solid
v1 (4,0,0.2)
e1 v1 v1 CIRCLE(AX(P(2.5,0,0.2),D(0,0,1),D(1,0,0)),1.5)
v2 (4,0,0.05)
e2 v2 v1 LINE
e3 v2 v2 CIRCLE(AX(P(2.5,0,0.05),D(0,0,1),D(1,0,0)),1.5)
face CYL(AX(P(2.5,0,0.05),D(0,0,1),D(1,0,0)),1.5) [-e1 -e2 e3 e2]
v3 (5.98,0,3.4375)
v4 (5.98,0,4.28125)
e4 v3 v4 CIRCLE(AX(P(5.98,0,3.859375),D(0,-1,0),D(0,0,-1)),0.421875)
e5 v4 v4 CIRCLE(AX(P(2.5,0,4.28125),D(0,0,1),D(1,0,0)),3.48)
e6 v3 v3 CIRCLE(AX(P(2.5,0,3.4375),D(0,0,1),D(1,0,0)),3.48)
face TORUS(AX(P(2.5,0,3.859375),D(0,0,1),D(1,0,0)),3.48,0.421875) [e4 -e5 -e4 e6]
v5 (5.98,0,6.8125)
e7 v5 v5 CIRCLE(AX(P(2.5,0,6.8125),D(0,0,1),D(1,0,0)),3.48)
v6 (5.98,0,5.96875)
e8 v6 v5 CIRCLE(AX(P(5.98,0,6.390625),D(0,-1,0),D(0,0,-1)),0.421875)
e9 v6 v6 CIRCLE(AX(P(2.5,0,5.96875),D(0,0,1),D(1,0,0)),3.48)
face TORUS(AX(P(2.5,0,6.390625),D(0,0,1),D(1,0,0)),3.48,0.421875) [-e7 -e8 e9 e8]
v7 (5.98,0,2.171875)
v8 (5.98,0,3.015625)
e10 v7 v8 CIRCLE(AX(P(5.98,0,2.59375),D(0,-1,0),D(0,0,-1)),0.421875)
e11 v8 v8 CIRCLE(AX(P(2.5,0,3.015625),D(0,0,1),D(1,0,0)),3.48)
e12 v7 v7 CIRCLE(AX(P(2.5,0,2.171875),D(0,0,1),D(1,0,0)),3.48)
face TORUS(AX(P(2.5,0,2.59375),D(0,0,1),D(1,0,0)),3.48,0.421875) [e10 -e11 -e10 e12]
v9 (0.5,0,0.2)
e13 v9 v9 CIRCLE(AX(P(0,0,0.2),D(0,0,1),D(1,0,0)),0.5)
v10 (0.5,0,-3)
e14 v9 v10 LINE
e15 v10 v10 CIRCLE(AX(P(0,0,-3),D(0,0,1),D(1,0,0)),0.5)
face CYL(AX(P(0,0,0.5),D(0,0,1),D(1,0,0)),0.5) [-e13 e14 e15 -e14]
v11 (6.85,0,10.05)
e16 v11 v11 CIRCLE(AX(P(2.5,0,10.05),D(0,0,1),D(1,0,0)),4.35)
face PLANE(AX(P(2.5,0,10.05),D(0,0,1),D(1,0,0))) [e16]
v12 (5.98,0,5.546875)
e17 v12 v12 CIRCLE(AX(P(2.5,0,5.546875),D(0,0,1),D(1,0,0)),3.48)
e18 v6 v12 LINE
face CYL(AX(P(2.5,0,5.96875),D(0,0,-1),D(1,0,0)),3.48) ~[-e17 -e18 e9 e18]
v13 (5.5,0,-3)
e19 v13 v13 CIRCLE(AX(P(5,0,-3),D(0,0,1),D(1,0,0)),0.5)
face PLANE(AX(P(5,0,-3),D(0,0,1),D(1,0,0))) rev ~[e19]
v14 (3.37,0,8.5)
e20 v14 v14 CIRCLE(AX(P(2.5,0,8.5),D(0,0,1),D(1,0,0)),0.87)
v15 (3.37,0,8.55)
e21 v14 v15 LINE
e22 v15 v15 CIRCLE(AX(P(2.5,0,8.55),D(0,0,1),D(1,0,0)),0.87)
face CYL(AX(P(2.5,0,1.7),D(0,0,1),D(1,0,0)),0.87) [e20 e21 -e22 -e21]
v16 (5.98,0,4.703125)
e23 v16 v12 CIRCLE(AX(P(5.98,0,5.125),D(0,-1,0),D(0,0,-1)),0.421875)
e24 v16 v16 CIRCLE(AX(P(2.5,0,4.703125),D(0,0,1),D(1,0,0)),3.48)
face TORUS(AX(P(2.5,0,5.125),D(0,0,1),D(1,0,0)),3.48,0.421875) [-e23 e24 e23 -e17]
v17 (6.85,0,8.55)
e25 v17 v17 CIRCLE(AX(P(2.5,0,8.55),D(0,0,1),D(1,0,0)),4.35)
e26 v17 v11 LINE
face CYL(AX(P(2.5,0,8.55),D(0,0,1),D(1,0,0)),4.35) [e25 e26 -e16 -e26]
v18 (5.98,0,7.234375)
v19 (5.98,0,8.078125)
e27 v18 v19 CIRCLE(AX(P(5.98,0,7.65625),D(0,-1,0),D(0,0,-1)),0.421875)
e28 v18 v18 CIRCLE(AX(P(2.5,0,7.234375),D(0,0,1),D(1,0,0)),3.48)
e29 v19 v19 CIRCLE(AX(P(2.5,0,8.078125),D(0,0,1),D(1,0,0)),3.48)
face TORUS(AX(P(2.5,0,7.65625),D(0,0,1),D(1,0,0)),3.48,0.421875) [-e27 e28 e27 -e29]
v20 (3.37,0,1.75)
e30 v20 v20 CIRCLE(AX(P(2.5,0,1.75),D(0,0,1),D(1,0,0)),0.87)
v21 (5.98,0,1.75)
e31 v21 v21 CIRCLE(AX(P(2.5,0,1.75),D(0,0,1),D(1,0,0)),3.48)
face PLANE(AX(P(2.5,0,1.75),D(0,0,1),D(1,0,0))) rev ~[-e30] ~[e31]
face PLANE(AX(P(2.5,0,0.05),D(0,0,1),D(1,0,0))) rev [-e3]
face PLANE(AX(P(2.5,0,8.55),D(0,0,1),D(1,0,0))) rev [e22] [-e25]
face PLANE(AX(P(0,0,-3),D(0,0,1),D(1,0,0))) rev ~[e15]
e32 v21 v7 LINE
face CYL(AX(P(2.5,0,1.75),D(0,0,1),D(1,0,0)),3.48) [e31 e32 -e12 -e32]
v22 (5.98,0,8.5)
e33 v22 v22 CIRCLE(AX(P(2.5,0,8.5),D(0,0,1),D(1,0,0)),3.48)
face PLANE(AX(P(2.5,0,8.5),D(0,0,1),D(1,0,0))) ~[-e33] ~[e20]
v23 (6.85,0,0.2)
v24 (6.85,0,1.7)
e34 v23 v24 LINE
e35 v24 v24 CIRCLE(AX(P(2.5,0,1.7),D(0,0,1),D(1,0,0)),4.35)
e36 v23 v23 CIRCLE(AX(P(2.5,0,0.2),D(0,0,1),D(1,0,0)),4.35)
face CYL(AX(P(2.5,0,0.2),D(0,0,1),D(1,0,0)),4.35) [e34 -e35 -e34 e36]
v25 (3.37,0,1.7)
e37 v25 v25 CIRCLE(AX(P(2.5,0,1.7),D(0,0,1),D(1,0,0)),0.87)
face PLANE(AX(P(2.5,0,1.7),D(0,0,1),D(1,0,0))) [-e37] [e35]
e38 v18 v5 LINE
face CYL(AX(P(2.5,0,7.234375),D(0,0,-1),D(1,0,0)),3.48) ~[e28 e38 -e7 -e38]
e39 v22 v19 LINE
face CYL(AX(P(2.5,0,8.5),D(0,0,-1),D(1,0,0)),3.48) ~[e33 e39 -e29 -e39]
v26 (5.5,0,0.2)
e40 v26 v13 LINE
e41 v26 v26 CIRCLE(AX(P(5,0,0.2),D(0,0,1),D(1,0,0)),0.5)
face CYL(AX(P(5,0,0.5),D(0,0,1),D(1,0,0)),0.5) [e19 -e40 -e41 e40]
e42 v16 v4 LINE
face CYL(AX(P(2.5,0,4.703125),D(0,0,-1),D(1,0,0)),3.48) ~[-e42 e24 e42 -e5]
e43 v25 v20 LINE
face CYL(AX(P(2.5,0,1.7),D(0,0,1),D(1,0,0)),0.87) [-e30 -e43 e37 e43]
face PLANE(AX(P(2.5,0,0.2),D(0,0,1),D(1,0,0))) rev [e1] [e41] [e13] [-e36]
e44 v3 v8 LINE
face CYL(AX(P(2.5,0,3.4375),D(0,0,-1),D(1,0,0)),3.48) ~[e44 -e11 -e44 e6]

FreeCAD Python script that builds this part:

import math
import FreeCAD as App
import Part
import Sketcher

V = App.Vector
Q = App.Units.Quantity


def add_polygon(sketch, points):
    """Adds a closed chain of lines whose ends are joined by coincident constraints."""
    first, n = sketch.GeometryCount, len(points)
    for a, b in zip(points, points[1:] + points[:1]):
        sketch.addGeometry(Part.LineSegment(App.Vector(*a, 0), App.Vector(*b, 0)), False)
    for i in range(n):
        sketch.addConstraint(Sketcher.Constraint("Coincident", first + i, 2, first + (i + 1) % n, 1))

doc = App.newDocument("Part")
body = doc.addObject("PartDesign::Body", "Body")

sketch1 = doc.addObject("Sketcher::SketchObject", "Sketch")
body.addObject(sketch1)
sketch1.AttachmentSupport = (doc.XZ_Plane, [""])
sketch1.MapMode = "FlatFace"
add_polygon(sketch1, [(2.5, 0.05), (4, 0.05), (4, 0.2), (6.85, 0.2), (6.85, 1.7), (3.37, 1.7), (3.37, 8.55), (6.85, 8.55), (6.85, 10.05), (2.5, 10.05)])
sketch1.addGeometry(Part.LineSegment(V(2.5, 0.05, 0), V(2.5, 10.05, 0)), True)
sketch1.addConstraint(Sketcher.Constraint("Horizontal", 0))
sketch1.addConstraint(Sketcher.Constraint("Vertical", 1))
sketch1.addConstraint(Sketcher.Constraint("Horizontal", 2))
sketch1.addConstraint(Sketcher.Constraint("Vertical", 3))
sketch1.addConstraint(Sketcher.Constraint("Horizontal", 4))
sketch1.addConstraint(Sketcher.Constraint("Vertical", 5))
sketch1.addConstraint(Sketcher.Constraint("Horizontal", 6))
sketch1.addConstraint(Sketcher.Constraint("Vertical", 7))
sketch1.addConstraint(Sketcher.Constraint("Horizontal", 8))
sketch1.addConstraint(Sketcher.Constraint("Vertical", 9))
sketch1.addConstraint(Sketcher.Constraint("Vertical", 10))
sketch1.addConstraint(Sketcher.Constraint("Coincident", 10, 1, 9, 2))
sketch1.addConstraint(Sketcher.Constraint("Horizontal", 7, 2, 10, 2))
sketch1.addConstraint(Sketcher.Constraint("Vertical", 3, 2, 6, 2))
sketch1.addConstraint(Sketcher.Constraint("Equal", 0, 3))
sketch1.addConstraint(Sketcher.Constraint("Equal", 3, 7))
sketch1.addConstraint(Sketcher.Constraint("DistanceY", 9, 2, 9, 1, Q("10 mm")))
sketch1.addConstraint(Sketcher.Constraint("DistanceX", 0, 1, 0, 2, Q("1.5 mm")))
sketch1.addConstraint(Sketcher.Constraint("DistanceX", -1, 1, 0, 2, Q("4 mm")))
sketch1.addConstraint(Sketcher.Constraint("DistanceX", 2, 1, 2, 2, Q("2.85 mm")))
sketch1.addConstraint(Sketcher.Constraint("DistanceX", 4, 2, 4, 1, Q("3.48 mm")))
sketch1.addConstraint(Sketcher.Constraint("DistanceY", 1, 1, 1, 2, Q("0.15 mm")))
sketch1.addConstraint(Sketcher.Constraint("DistanceY", -1, 1, 1, 2, Q("0.2 mm")))
revolution = doc.addObject("PartDesign::Revolution", "Revolution")
body.addObject(revolution)
revolution.Profile = sketch1
revolution.ReferenceAxis = (sketch1, ["Axis0"])
revolution.Angle = 360
body2 = doc.addObject("PartDesign::Body", "Body001")
body2.AllowCompound = True

sketch2 = doc.addObject("Sketcher::SketchObject", "Sketch001")
body2.addObject(sketch2)
sketch2.AttachmentSupport = (doc.getObject("XY_Plane001"), [""])
sketch2.MapMode = "FlatFace"
sketch2.AttachmentOffset = App.Placement(V(0, 0, 0.5), App.Rotation())
sketch2.addGeometry(Part.Circle(V(0, 0, 0), V(0, 0, 1), 0.5), False)
sketch2.addGeometry(Part.Circle(V(5, 0, 0), V(0, 0, 1), 0.5), False)
sketch2.addConstraint(Sketcher.Constraint("Coincident", 0, 3, -1, 1))
sketch2.addConstraint(Sketcher.Constraint("Equal", 0, 1))
sketch2.addConstraint(Sketcher.Constraint("PointOnObject", 1, 3, -1))
sketch2.addConstraint(Sketcher.Constraint("Diameter", 0, Q("1 mm")))
sketch2.addConstraint(Sketcher.Constraint("DistanceX", -1, 1, 1, 3, Q("5 mm")))
pad1 = doc.addObject("PartDesign::Pad", "Pad")
body2.addObject(pad1)
pad1.Profile = sketch2
pad1.Length = 3.5
pad1.Reversed = True
body3 = doc.addObject("PartDesign::Body", "Body002")

sketch3 = doc.addObject("Sketcher::SketchObject", "Sketch002")
body3.addObject(sketch3)
sketch3.AttachmentSupport = (doc.getObject("XZ_Plane002"), [""])
sketch3.MapMode = "FlatFace"
sketch3.addGeometry(Part.LineSegment(V(3.37, 1.75, 0), V(5.98, 1.75, 0)), False)
sketch3.addGeometry(Part.LineSegment(V(5.98, 1.75, 0), V(5.98, 2.17, 0)), False)
sketch3.addGeometry(Part.ArcOfCircle(Part.Circle(V(5.98, 2.59, 0), V(0, 0, 1), 0.42), math.radians(-90), math.radians(90)), False)
sketch3.addGeometry(Part.LineSegment(V(5.98, 3.02, 0), V(5.98, 3.44, 0)), False)
sketch3.addGeometry(Part.ArcOfCircle(Part.Circle(V(5.98, 3.86, 0), V(0, 0, 1), 0.42), math.radians(-90), math.radians(90)), False)
sketch3.addGeometry(Part.LineSegment(V(5.98, 4.28, 0), V(5.98, 4.7, 0)), False)
sketch3.addGeometry(Part.ArcOfCircle(Part.Circle(V(5.98, 5.12, 0), V(0, 0, 1), 0.42), math.radians(-90), math.radians(90)), False)
sketch3.addGeometry(Part.LineSegment(V(5.98, 5.55, 0), V(5.98, 5.97, 0)), False)
sketch3.addGeometry(Part.ArcOfCircle(Part.Circle(V(5.98, 6.39, 0), V(0, 0, 1), 0.42), math.radians(-90), math.radians(90)), False)
sketch3.addGeometry(Part.LineSegment(V(5.98, 6.81, 0), V(5.98, 7.23, 0)), False)
sketch3.addGeometry(Part.ArcOfCircle(Part.Circle(V(5.98, 7.66, 0), V(0, 0, 1), 0.42), math.radians(-90), math.radians(90)), False)
sketch3.addGeometry(Part.LineSegment(V(5.98, 8.08, 0), V(5.98, 8.5, 0)), False)
sketch3.addGeometry(Part.LineSegment(V(5.98, 8.5, 0), V(3.37, 8.5, 0)), False)
sketch3.addGeometry(Part.LineSegment(V(3.37, 8.5, 0), V(3.37, 1.75, 0)), False)
sketch3.addGeometry(Part.LineSegment(V(2.5, 1.75, 0), V(2.5, 8.5, 0)), True)
sketch3.addConstraint(Sketcher.Constraint("Coincident", 0, 2, 1, 1))
sketch3.addConstraint(Sketcher.Constraint("Coincident", 1, 2, 2, 1))
sketch3.addConstraint(Sketcher.Constraint("Coincident", 2, 2, 3, 1))
sketch3.addConstraint(Sketcher.Constraint("Coincident", 3, 2, 4, 1))
sketch3.addConstraint(Sketcher.Constraint("Coincident", 4, 2, 5, 1))
sketch3.addConstraint(Sketcher.Constraint("Coincident", 5, 2, 6, 1))
sketch3.addConstraint(Sketcher.Constraint("Coincident", 6, 2, 7, 1))
sketch3.addConstraint(Sketcher.Constraint("Coincident", 7, 2, 8, 1))
sketch3.addConstraint(Sketcher.Constraint("Coincident", 8, 2, 9, 1))
sketch3.addConstraint(Sketcher.Constraint("Coincident", 9, 2, 10, 1))
sketch3.addConstraint(Sketcher.Constraint("Coincident", 10, 2, 11, 1))
sketch3.addConstraint(Sketcher.Constraint("Coincident", 11, 2, 12, 1))
sketch3.addConstraint(Sketcher.Constraint("Coincident", 12, 2, 13, 1))
sketch3.addConstraint(Sketcher.Constraint("Coincident", 13, 2, 0, 1))
sketch3.addConstraint(Sketcher.Constraint("Horizontal", 0))
sketch3.addConstraint(Sketcher.Constraint("Vertical", 1))
sketch3.addConstraint(Sketcher.Constraint("Vertical", 3))
sketch3.addConstraint(Sketcher.Constraint("Vertical", 5))
sketch3.addConstraint(Sketcher.Constraint("Vertical", 7))
sketch3.addConstraint(Sketcher.Constraint("Vertical", 9))
sketch3.addConstraint(Sketcher.Constraint("Vertical", 11))
sketch3.addConstraint(Sketcher.Constraint("Horizontal", 12))
sketch3.addConstraint(Sketcher.Constraint("Vertical", 13))
sketch3.addConstraint(Sketcher.Constraint("Vertical", 14))
sketch3.addConstraint(Sketcher.Constraint("Equal", 2, 4))
sketch3.addConstraint(Sketcher.Constraint("Equal", 4, 6))
sketch3.addConstraint(Sketcher.Constraint("Equal", 6, 8))
sketch3.addConstraint(Sketcher.Constraint("Equal", 8, 10))
sketch3.addConstraint(Sketcher.Constraint("Horizontal", 13, 2, 14, 1))
sketch3.addConstraint(Sketcher.Constraint("Horizontal", 12, 2, 14, 2))
sketch3.addConstraint(Sketcher.Constraint("Vertical", 2, 3, 4, 3))
sketch3.addConstraint(Sketcher.Constraint("Vertical", 4, 3, 6, 3))
sketch3.addConstraint(Sketcher.Constraint("Vertical", 6, 3, 8, 3))
sketch3.addConstraint(Sketcher.Constraint("Vertical", 8, 3, 10, 3))
sketch3.addConstraint(Sketcher.Constraint("Vertical", 10, 3, 0, 2))
sketch3.addConstraint(Sketcher.Constraint("Vertical", 1, 2, 2, 2))
sketch3.addConstraint(Sketcher.Constraint("Vertical", 3, 2, 4, 2))
sketch3.addConstraint(Sketcher.Constraint("Vertical", 5, 2, 6, 2))
sketch3.addConstraint(Sketcher.Constraint("Vertical", 7, 2, 8, 2))
sketch3.addConstraint(Sketcher.Constraint("Vertical", 9, 2, 10, 2))
sketch3.addConstraint(Sketcher.Constraint("Equal", 1, 3))
sketch3.addConstraint(Sketcher.Constraint("Equal", 3, 5))
sketch3.addConstraint(Sketcher.Constraint("Equal", 5, 7))
sketch3.addConstraint(Sketcher.Constraint("Equal", 7, 9))
sketch3.addConstraint(Sketcher.Constraint("Equal", 9, 11))
sketch3.addConstraint(Sketcher.Constraint("DistanceX", 0, 1, 0, 2, Q("2.61 mm")))
sketch3.addConstraint(Sketcher.Constraint("DistanceY", 13, 2, 13, 1, Q("6.75 mm")))
sketch3.addConstraint(Sketcher.Constraint("DistanceY", -1, 1, 11, 2, Q("8.5 mm")))
sketch3.addConstraint(Sketcher.Constraint("DistanceX", -1, 1, 14, 1, Q("2.5 mm")))
sketch3.addConstraint(Sketcher.Constraint("DistanceX", -1, 1, 2, 3, Q("5.98 mm")))
sketch3.addConstraint(Sketcher.Constraint("Radius", 2, Q("0.421875 mm")))
revolution2 = doc.addObject("PartDesign::Revolution", "Revolution001")
body3.addObject(revolution2)
revolution2.Profile = sketch3
revolution2.ReferenceAxis = (sketch3, ["Axis0"])
revolution2.Angle = 360
doc.recompute()

boolean = doc.addObject("PartDesign::Boolean", "Boolean")
body3.addObject(boolean)
boolean.Type = "Fuse"
boolean.addObjects([body])
doc.recompute()

boolean2 = doc.addObject("PartDesign::Boolean", "Boolean001")
body3.addObject(boolean2)
boolean2.Type = "Fuse"
boolean2.addObjects([body2])

doc.recompute()
